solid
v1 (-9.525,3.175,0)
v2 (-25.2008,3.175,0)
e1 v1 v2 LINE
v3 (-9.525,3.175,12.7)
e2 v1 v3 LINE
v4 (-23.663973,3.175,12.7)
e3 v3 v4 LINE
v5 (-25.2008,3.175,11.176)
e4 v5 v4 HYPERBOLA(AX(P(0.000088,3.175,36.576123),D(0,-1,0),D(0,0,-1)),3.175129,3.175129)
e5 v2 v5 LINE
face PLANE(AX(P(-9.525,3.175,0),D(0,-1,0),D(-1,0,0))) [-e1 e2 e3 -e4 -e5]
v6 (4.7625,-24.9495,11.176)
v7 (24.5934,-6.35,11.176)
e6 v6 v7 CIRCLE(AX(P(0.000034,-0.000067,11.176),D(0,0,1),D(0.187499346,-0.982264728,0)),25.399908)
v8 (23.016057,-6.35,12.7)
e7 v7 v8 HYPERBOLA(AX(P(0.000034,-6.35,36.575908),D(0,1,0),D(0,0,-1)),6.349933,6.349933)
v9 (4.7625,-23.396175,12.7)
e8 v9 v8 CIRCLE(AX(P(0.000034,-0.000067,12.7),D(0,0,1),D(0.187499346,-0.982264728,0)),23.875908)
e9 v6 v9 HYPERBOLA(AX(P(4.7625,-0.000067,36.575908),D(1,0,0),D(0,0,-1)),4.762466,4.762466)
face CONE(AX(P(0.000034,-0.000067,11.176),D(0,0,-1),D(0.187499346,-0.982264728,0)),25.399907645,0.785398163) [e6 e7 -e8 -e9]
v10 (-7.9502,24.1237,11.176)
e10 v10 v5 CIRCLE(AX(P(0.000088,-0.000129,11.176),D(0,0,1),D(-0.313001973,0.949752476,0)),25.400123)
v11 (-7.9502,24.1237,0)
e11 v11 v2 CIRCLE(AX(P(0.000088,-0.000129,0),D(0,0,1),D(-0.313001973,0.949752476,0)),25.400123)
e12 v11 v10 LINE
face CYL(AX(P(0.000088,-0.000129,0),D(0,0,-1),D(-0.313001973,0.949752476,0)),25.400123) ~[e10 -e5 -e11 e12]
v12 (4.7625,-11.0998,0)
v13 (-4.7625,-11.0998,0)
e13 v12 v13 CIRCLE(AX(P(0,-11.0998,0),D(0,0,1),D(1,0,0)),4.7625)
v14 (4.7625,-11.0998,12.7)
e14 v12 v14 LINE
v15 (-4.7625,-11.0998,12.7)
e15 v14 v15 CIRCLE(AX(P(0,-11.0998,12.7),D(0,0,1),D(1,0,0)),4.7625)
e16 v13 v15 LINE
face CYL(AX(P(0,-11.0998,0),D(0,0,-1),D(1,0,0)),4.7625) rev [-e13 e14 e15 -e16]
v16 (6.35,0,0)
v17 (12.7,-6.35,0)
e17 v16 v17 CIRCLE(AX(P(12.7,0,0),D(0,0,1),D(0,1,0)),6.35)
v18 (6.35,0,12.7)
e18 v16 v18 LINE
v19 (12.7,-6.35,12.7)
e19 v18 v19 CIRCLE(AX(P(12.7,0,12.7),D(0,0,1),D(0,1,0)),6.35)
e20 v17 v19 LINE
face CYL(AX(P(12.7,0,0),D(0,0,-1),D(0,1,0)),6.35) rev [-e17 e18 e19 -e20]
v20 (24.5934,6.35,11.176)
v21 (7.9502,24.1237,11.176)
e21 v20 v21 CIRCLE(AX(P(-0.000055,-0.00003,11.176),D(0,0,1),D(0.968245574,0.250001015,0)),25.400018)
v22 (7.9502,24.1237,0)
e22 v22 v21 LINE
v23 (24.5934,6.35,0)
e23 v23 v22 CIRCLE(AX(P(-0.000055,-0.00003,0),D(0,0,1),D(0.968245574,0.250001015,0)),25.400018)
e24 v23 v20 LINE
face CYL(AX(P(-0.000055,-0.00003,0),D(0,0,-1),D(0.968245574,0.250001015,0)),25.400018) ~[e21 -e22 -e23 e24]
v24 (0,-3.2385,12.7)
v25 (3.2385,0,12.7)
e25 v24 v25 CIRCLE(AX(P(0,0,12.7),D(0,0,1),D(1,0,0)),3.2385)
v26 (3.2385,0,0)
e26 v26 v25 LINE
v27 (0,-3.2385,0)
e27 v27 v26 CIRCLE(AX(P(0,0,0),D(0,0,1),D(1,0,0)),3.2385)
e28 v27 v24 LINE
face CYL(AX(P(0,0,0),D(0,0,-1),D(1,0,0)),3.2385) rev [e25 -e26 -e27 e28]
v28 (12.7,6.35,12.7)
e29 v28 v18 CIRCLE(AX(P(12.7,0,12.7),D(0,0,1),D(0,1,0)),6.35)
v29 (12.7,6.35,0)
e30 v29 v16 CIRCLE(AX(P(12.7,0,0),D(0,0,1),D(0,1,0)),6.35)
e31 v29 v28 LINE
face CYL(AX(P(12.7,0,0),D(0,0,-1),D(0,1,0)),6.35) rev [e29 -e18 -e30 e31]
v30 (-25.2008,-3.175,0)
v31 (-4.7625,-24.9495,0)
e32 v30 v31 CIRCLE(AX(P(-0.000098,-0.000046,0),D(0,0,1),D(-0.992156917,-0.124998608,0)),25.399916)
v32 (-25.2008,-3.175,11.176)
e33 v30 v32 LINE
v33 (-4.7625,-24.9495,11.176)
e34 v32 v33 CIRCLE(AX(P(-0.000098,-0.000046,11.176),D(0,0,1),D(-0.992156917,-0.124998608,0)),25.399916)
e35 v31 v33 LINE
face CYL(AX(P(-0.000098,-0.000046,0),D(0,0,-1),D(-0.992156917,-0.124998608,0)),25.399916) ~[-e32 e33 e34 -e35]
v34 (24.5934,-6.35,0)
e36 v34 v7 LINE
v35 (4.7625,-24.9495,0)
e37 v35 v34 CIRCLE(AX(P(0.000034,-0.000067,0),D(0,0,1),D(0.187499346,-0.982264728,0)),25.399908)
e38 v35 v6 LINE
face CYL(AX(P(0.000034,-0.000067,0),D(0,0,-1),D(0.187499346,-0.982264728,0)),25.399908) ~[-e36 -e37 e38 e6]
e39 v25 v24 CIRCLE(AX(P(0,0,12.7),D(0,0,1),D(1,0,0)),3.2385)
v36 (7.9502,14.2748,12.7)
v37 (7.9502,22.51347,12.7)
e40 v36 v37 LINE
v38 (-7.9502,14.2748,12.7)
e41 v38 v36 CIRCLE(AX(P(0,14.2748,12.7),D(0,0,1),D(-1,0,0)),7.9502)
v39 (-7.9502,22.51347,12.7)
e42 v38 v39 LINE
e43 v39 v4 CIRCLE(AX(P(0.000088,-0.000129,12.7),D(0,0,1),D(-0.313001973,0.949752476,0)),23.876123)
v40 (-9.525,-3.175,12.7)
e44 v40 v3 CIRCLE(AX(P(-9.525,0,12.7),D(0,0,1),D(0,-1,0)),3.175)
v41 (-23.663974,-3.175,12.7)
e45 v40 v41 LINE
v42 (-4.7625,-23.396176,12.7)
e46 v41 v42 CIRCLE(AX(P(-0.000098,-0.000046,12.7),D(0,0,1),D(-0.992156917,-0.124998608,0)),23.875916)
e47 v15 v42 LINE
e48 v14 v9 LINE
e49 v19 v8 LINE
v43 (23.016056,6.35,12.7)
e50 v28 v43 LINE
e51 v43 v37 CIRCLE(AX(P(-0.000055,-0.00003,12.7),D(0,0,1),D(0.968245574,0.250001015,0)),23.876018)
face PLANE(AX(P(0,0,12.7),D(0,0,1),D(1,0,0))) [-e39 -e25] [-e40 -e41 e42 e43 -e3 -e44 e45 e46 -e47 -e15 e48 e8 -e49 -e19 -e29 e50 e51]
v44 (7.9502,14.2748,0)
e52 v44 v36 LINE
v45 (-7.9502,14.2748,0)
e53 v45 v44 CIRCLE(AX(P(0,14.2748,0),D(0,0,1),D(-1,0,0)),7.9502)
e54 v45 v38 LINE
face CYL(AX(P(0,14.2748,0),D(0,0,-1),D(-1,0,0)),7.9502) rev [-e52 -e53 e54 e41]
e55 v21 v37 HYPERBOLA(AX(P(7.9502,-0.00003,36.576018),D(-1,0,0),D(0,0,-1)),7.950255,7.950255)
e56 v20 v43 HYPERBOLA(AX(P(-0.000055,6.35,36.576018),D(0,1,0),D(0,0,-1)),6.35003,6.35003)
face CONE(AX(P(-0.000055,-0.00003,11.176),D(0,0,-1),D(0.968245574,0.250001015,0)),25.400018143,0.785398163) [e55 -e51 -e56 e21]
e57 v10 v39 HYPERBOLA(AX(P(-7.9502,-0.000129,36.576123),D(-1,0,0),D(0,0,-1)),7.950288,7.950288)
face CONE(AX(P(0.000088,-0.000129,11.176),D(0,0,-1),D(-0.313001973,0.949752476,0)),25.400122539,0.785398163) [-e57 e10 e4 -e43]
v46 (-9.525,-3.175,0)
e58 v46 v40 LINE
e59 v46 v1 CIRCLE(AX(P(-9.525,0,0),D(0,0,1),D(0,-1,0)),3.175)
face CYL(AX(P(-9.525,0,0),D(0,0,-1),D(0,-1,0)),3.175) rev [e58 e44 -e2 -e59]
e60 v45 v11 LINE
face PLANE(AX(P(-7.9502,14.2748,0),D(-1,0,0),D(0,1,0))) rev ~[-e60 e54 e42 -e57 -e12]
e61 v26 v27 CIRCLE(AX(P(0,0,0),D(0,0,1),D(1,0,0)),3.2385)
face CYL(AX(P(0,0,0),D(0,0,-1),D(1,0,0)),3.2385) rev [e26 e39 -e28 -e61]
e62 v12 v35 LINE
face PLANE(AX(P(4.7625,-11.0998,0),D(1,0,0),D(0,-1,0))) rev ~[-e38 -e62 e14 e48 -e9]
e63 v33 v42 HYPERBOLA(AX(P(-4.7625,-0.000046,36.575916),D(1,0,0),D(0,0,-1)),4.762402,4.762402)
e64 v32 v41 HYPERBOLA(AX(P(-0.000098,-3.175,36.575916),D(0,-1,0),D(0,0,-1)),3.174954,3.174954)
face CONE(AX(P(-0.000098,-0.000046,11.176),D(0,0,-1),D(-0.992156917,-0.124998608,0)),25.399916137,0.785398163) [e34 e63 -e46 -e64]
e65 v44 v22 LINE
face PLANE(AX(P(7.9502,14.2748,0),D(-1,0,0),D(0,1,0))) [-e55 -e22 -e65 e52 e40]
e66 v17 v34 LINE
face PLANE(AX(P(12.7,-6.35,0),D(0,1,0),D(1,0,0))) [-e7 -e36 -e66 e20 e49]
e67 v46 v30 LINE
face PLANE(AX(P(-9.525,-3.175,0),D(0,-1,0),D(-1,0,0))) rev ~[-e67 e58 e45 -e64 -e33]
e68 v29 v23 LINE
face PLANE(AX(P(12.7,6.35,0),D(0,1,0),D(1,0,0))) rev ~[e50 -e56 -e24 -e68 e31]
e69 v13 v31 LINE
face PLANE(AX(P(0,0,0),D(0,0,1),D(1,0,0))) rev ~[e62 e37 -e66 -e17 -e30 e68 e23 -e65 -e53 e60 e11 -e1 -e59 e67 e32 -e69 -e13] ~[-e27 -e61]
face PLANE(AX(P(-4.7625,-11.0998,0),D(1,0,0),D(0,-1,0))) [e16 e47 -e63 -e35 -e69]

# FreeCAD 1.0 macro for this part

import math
import FreeCAD as App
import Part
import Sketcher

V = App.Vector
Q = App.Units.Quantity


def edges_at(feature, points):
    """Names of the edges that pass closest to the given points."""
    edges = feature.Shape.Edges
    near = lambda p: min(range(len(edges)), key=lambda i: edges[i].distToShape(Part.Vertex(*p))[0])
    return sorted({f"Edge{near(p) + 1}" for p in points})

doc = App.newDocument("Part")
body = doc.addObject("PartDesign::Body", "Body")

# Sketch on XY plane
sketch1 = body.newObject("Sketcher::SketchObject", "Sketch")
sketch1.AttachmentSupport = (doc.getObject("XY_Plane"), [""])
sketch1.MapMode = "FlatFace"
sketch1.addGeometry([
    Part.ArcOfCircle(Part.Circle(V(12.7, 0, 0), V(0, 0, 1), 6.3), math.radians(90), math.radians(270)),  # 0
    Part.LineSegment(V(12.7, 6.3, 0), V(24.6, 6.3, 0)),  # 1
    Part.ArcOfCircle(Part.Circle(V(0, 0, 0), V(0, 0, 1), 25.4), math.radians(14), math.radians(72)),  # 2
    Part.LineSegment(V(8, 24.1, 0), V(8, 14.3, 0)),  # 3
    Part.ArcOfCircle(Part.Circle(V(0, 14.3, 0), V(0, 0, 1), 8), math.radians(180), math.radians(360)),  # 4
    Part.LineSegment(V(-8, 14.3, 0), V(-8, 24.1, 0)),  # 5
    Part.ArcOfCircle(Part.Circle(V(0, 0, 0), V(0, 0, 1), 25.4), math.radians(108), math.radians(173)),  # 6
    Part.LineSegment(V(-25.2, 3.2, 0), V(-9.5, 3.2, 0)),  # 7
    Part.ArcOfCircle(Part.Circle(V(-9.5, 0, 0), V(0, 0, 1), 3.2), math.radians(-90), math.radians(90)),  # 8
    Part.LineSegment(V(-9.5, -3.2, 0), V(-25.2, -3.2, 0)),  # 9
    Part.ArcOfCircle(Part.Circle(V(0, 0, 0), V(0, 0, 1), 25.4), math.radians(-173), math.radians(-101)),  # 10
    Part.LineSegment(V(-4.8, -24.9, 0), V(-4.8, -11.1, 0)),  # 11
    Part.ArcOfCircle(Part.Circle(V(0, -11.1, 0), V(0, 0, 1), 4.8), math.radians(0), math.radians(180)),  # 12
    Part.LineSegment(V(4.8, -11.1, 0), V(4.8, -24.9, 0)),  # 13
    Part.ArcOfCircle(Part.Circle(V(0, 0, 0), V(0, 0, 1), 25.4), math.radians(-79), math.radians(-14)),  # 14
    Part.LineSegment(V(24.6, -6.3, 0), V(12.7, -6.3, 0)),  # 15
    Part.Circle(V(0, 0, 0), V(0, 0, 1), 3.2),  # 16
], False)
sketch1.addConstraint([
    Sketcher.Constraint("Tangent", 0, 1, 1, 1),
    Sketcher.Constraint("Coincident", 1, 2, 2, 1),
    Sketcher.Constraint("Coincident", 2, 2, 3, 1),
    Sketcher.Constraint("Tangent", 3, 2, 4, 2),
    Sketcher.Constraint("Tangent", 4, 1, 5, 1),
    Sketcher.Constraint("Coincident", 5, 2, 6, 1),
    Sketcher.Constraint("Coincident", 6, 2, 7, 1),
    Sketcher.Constraint("Tangent", 7, 2, 8, 2),
    Sketcher.Constraint("Tangent", 8, 1, 9, 1),
    Sketcher.Constraint("Coincident", 9, 2, 10, 1),
    Sketcher.Constraint("Coincident", 10, 2, 11, 1),
    Sketcher.Constraint("Tangent", 11, 2, 12, 2),
    Sketcher.Constraint("Tangent", 12, 1, 13, 1),
    Sketcher.Constraint("Coincident", 13, 2, 14, 1),
    Sketcher.Constraint("Coincident", 14, 2, 15, 1),
    Sketcher.Constraint("Tangent", 15, 2, 0, 2),
    Sketcher.Constraint("Horizontal", 1),
    Sketcher.Constraint("Vertical", 3),
    Sketcher.Constraint("Vertical", 5),
    Sketcher.Constraint("Horizontal", 7),
    Sketcher.Constraint("Horizontal", 9),
    Sketcher.Constraint("Vertical", 11),
    Sketcher.Constraint("Vertical", 13),
    Sketcher.Constraint("Horizontal", 15),
    Sketcher.Constraint("Coincident", 2, 3, -1, 1),
    Sketcher.Constraint("Coincident", 6, 3, -1, 1),
    Sketcher.Constraint("Coincident", 10, 3, -1, 1),
    Sketcher.Constraint("Coincident", 14, 3, -1, 1),
    Sketcher.Constraint("Coincident", 16, 3, -1, 1),
    Sketcher.Constraint("Equal", 2, 6),
    Sketcher.Constraint("Equal", 6, 10),
    Sketcher.Constraint("Equal", 10, 14),
    Sketcher.Constraint("PointOnObject", 0, 3, -1),
    Sketcher.Constraint("PointOnObject", 4, 3, -2),
    Sketcher.Constraint("PointOnObject", 8, 3, -1),
    Sketcher.Constraint("PointOnObject", 12, 3, -2),
    Sketcher.Constraint("Radius", 0, Q("0.25 in")),
    Sketcher.Constraint("Diameter", 16, Q("0.255 in")),
    Sketcher.Constraint("Radius", 2, Q("1 in")),
    Sketcher.Constraint("Radius", 4, Q("0.313 in")),
    Sketcher.Constraint("Radius", 8, Q("0.125 in")),
    Sketcher.Constraint("Radius", 12, Q("0.1875 in")),
    Sketcher.Constraint("DistanceX", -1, 1, 0, 3, Q("0.5 in")),
    Sketcher.Constraint("DistanceY", -1, 1, 4, 3, Q("0.562 in")),
    Sketcher.Constraint("DistanceX", 8, 3, -1, 1, Q("0.375 in")),
    Sketcher.Constraint("DistanceY", 12, 3, -1, 1, Q("0.437 in")),
])
pad1 = body.newObject("PartDesign::Pad", "Pad")
pad1.Profile = sketch1
pad1.Length = Q("0.5 in")
doc.recompute()

chamfer = body.newObject("PartDesign::Chamfer", "Chamfer")
chamfer.Base = (pad1, edges_at(pad1, [
    (-19.608, 16.146, 12.7),
    (18.541, 17.361, 12.7),
    (17.376, -18.526, 12.7),
    (-18.52, -17.383, 12.7),
]))
chamfer.Size = Q("0.06 in")

doc.recompute()
